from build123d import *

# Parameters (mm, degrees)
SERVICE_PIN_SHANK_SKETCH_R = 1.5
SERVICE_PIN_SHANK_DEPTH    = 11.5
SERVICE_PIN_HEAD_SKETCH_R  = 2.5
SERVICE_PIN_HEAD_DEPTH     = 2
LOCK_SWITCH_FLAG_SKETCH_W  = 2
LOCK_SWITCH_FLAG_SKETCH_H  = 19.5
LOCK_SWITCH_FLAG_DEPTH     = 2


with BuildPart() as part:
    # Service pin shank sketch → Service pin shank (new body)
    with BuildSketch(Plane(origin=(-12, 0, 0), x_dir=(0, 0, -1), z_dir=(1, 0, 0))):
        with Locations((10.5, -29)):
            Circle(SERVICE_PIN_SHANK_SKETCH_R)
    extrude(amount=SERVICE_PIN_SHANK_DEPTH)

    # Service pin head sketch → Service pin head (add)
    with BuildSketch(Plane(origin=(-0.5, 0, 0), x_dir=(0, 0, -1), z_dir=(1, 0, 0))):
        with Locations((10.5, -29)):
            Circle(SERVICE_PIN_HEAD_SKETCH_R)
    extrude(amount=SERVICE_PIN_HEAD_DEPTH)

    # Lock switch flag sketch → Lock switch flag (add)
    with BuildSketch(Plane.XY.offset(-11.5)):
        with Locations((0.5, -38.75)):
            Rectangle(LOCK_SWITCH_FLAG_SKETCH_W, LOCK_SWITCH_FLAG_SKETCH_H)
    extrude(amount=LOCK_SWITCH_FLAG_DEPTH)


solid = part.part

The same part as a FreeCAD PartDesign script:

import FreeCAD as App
import Part
import Sketcher
from FreeCAD import Vector


def add_polygon(sketch, points):
    """Adds a closed chain of lines whose ends are joined by coincident constraints."""
    first, n = sketch.GeometryCount, len(points)
    for a, b in zip(points, points[1:] + points[:1]):
        sketch.addGeometry(Part.LineSegment(App.Vector(*a, 0), App.Vector(*b, 0)), False)
    for i in range(n):
        sketch.addConstraint(Sketcher.Constraint("Coincident", first + i, 2, first + (i + 1) % n, 1))

doc = App.newDocument("Part")
body = doc.addObject("PartDesign::Body", "Body")

# Sketch on YZ plane
sketch1 = body.newObject("Sketcher::SketchObject", "Sketch")
sketch1.AttachmentSupport = (doc.getObject("YZ_Plane"), [""])
sketch1.MapMode = "FlatFace"
sketch1.AttachmentOffset = App.Placement(Vector(0, 0, -12), App.Rotation())
sketch1.addGeometry(Part.Circle(Vector(-29, -10.5, 0), Vector(0, 0, 1), 1.5), False)
sketch1.addConstraint(Sketcher.Constraint("Diameter", 0, 3.0))
sketch1.addConstraint(Sketcher.Constraint("DistanceX", 0, 3, -1, 1, 29.0))
sketch1.addConstraint(Sketcher.Constraint("DistanceY", 0, 3, -1, 1, 10.5))
pad1 = body.newObject("PartDesign::Pad", "Pad")
pad1.Profile = sketch1
pad1.Length = 11.5

# Sketch on YZ plane
sketch2 = body.newObject("Sketcher::SketchObject", "Sketch001")
sketch2.AttachmentSupport = (doc.getObject("YZ_Plane"), [""])
sketch2.MapMode = "FlatFace"
sketch2.AttachmentOffset = App.Placement(Vector(0, 0, -0.5), App.Rotation())
sketch2.addGeometry(Part.Circle(Vector(-29, -10.5, 0), Vector(0, 0, 1), 2.5), False)
sketch2.addConstraint(Sketcher.Constraint("Diameter", 0, 5.0))
sketch2.addConstraint(Sketcher.Constraint("DistanceX", 0, 3, -1, 1, 29.0))
sketch2.addConstraint(Sketcher.Constraint("DistanceY", 0, 3, -1, 1, 10.5))
pad2 = body.newObject("PartDesign::Pad", "Pad001")
pad2.Profile = sketch2
pad2.Length = 2

# Sketch on XY plane
sketch3 = body.newObject("Sketcher::SketchObject", "Sketch002")
sketch3.AttachmentSupport = (doc.getObject("XY_Plane"), [""])
sketch3.MapMode = "FlatFace"
sketch3.AttachmentOffset = App.Placement(Vector(0, 0, -11.5), App.Rotation())
add_polygon(sketch3, [(-0.5, -29), (-0.5, -48.5), (1.5, -48.5), (1.5, -29)])  # lines 0-3
sketch3.addConstraint(Sketcher.Constraint("Vertical", 0))
sketch3.addConstraint(Sketcher.Constraint("Horizontal", 1))
sketch3.addConstraint(Sketcher.Constraint("Vertical", 2))
sketch3.addConstraint(Sketcher.Constraint("Horizontal", 3))
sketch3.addConstraint(Sketcher.Constraint("DistanceX", 1, 1, 1, 2, 2.0))
sketch3.addConstraint(Sketcher.Constraint("DistanceY", 0, 2, 0, 1, 19.5))
sketch3.addConstraint(Sketcher.Constraint("DistanceY", 2, 2, -1, 1, 29.0))
sketch3.addConstraint(Sketcher.Constraint("DistanceX", 0, 2, -1, 1, 0.5))
pad3 = body.newObject("PartDesign::Pad", "Pad002")
pad3.Profile = sketch3
pad3.Length = 2

doc.recompute()
